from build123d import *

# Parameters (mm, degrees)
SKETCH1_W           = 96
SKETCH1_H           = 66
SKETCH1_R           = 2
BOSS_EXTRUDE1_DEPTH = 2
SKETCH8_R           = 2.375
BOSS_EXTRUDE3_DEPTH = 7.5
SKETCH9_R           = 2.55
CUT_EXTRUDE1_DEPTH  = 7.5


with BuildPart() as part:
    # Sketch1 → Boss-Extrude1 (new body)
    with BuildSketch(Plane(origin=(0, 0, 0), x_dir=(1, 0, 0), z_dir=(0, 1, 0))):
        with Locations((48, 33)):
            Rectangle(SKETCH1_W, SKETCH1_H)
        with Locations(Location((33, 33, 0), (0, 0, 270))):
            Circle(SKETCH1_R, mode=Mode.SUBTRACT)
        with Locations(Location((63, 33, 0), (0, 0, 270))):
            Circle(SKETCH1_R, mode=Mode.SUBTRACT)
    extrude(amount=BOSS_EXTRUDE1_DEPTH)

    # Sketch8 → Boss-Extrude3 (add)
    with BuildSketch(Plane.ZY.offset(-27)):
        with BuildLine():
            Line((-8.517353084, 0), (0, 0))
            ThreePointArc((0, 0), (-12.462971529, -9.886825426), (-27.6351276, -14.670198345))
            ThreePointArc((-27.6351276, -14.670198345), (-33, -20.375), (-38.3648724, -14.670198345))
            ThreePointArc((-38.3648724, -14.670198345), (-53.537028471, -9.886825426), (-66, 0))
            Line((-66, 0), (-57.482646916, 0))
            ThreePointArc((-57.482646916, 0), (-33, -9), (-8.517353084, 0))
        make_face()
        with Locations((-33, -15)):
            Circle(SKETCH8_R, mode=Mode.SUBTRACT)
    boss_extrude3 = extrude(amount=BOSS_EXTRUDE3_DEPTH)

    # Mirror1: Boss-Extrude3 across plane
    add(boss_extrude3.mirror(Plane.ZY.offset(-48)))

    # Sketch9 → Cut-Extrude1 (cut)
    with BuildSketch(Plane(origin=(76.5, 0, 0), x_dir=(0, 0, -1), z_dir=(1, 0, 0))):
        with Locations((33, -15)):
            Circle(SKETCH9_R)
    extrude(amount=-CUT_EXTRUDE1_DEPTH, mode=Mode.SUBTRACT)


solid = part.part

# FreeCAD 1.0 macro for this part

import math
import FreeCAD as App
import Part
import Sketcher
from FreeCAD import Vector
Q = App.Units.Quantity


def add_polygon(sketch, points):
    """Adds a closed chain of lines whose ends are joined by coincident constraints."""
    first, n = sketch.GeometryCount, len(points)
    for a, b in zip(points, points[1:] + points[:1]):
        sketch.addGeometry(Part.LineSegment(App.Vector(*a, 0), App.Vector(*b, 0)), False)
    for i in range(n):
        sketch.addConstraint(Sketcher.Constraint("Coincident", first + i, 2, first + (i + 1) % n, 1))

doc = App.newDocument("Part")
params = doc.addObject("Spreadsheet::Sheet", "Params")
for row, (alias, value) in enumerate([
    ("sketch1_diameter", "4 mm"),
    ("sketch1_width", "96 mm"),
    ("sketch1_height", "66 mm"),
    ("pad1_length", "2 mm"),
    ("sketch2_radius", "37.8 mm"),
    ("sketch2_radius2", "43.8 mm"),
    ("sketch2_diameter", "4.75 mm"),
    ("pad2_length", "7.5 mm"),
    ("sketch3_diameter", "5.1 mm"),
    ("pocket1_length", "7.5 mm"),
], start=1):
    params.set(f"A{row}", alias)
    params.set(f"B{row}", "=" + value)
    params.setAlias(f"B{row}", alias)

body = doc.addObject("PartDesign::Body", "Body")

# Sketch on XZ plane
sketch1 = doc.addObject("Sketcher::SketchObject", "Sketch")
body.addObject(sketch1)
sketch1.AttachmentSupport = (doc.XZ_Plane, [""])
sketch1.MapMode = "FlatFace"
add_polygon(sketch1, [(0, -66), (0, 0), (96, 0), (96, -66)])  # lines 0-3
sketch1.addGeometry(Part.Circle(Vector(33, -33, 0), Vector(0, 0, 1), 2), False)  # 4
sketch1.addGeometry(Part.Circle(Vector(63, -33, 0), Vector(0, 0, 1), 2), False)  # 5
sketch1.addConstraint([
    Sketcher.Constraint("Vertical", 0),
    Sketcher.Constraint("Horizontal", 1),
    Sketcher.Constraint("Vertical", 2),
    Sketcher.Constraint("Horizontal", 3),
    Sketcher.Constraint("Coincident", 0, 2, -1, 1),
    Sketcher.Constraint("Equal", 4, 5),
    Sketcher.Constraint("Horizontal", 4, 3, 5, 3),
    Sketcher.Constraint("Diameter", 4, Q("4 mm")),
    Sketcher.Constraint("DistanceX", 1, 1, 1, 2, Q("96 mm")),
    Sketcher.Constraint("DistanceY", 0, 1, 0, 2, Q("66 mm")),
    Sketcher.Constraint("DistanceX", -1, 1, 4, 3, Q("33 mm")),
    Sketcher.Constraint("DistanceY", 4, 3, -1, 1, Q("33 mm")),
    Sketcher.Constraint("DistanceX", -1, 1, 5, 3, Q("63 mm")),
])
sketch1.setExpression("Constraints[11]", "Params.sketch1_diameter")
sketch1.setExpression("Constraints[12]", "Params.sketch1_width")
sketch1.setExpression("Constraints[13]", "Params.sketch1_height")
pad1 = doc.addObject("PartDesign::Pad", "Pad")
body.addObject(pad1)
pad1.Profile = sketch1
pad1.setExpression("Length", "Params.pad1_length")
pad1.Reversed = True

# Sketch on YZ plane
sketch2 = doc.addObject("Sketcher::SketchObject", "Sketch001")
body.addObject(sketch2)
sketch2.AttachmentSupport = (doc.YZ_Plane, [""])
sketch2.MapMode = "FlatFace"
sketch2.AttachmentOffset = App.Placement(Vector(0, 0, 27), App.Rotation())
sketch2.addGeometry([
    Part.LineSegment(Vector(0, 0, 0), Vector(0, -8.517353, 0)),  # 0
    Part.ArcOfCircle(Part.Circle(Vector(28.8, -33, 0), Vector(0, 0, 1), 37.8), math.radians(139.632406), math.radians(220.367594)),  # 1
    Part.LineSegment(Vector(0, -57.482647, 0), Vector(0, -66, 0)),  # 2
    Part.ArcOfCircle(Part.Circle(Vector(28.8, -33, 0), Vector(0, 0, 1), 43.8), math.radians(-172.96442), math.radians(-131.11209)),  # 3
    Part.ArcOfCircle(Part.Circle(Vector(-15, -33, 0), Vector(0, 0, 1), 5.375), math.radians(86.48221), math.radians(273.51779)),  # 4
    Part.ArcOfCircle(Part.Circle(Vector(28.8, -33, 0), Vector(0, 0, 1), 43.8), math.radians(131.11209), math.radians(172.96442)),  # 5
    Part.Circle(Vector(-15, -33, 0), Vector(0, 0, 1), 2.375),  # 6
], False)
sketch2.addConstraint([
    Sketcher.Constraint("Coincident", 0, 2, 1, 1),
    Sketcher.Constraint("Coincident", 1, 2, 2, 1),
    Sketcher.Constraint("Coincident", 2, 2, 3, 2),
    Sketcher.Constraint("Coincident", 3, 1, 4, 2),
    Sketcher.Constraint("Coincident", 4, 1, 5, 2),
    Sketcher.Constraint("Coincident", 5, 1, 0, 1),
    Sketcher.Constraint("Vertical", 0),
    Sketcher.Constraint("Vertical", 2),
    Sketcher.Constraint("Coincident", 5, 1, -1, 1),
    Sketcher.Constraint("Coincident", 3, 3, 1, 3),
    Sketcher.Constraint("Coincident", 5, 3, 1, 3),
    Sketcher.Constraint("Coincident", 6, 3, 4, 3),
    Sketcher.Constraint("Equal", 3, 5),
    Sketcher.Constraint("PointOnObject", 1, 2, -2),
    Sketcher.Constraint("Horizontal", 3, 3, 4, 3),
    Sketcher.Constraint("Radius", 1, Q("37.8 mm")),
    Sketcher.Constraint("Radius", 3, Q("43.8 mm")),
    Sketcher.Constraint("Diameter", 6, Q("4.75 mm")),
    Sketcher.Constraint("DistanceY", 1, 3, -1, 1, Q("33 mm")),
    Sketcher.Constraint("DistanceX", 4, 3, -1, 1, Q("15 mm")),
    Sketcher.Constraint("Radius", 4, Q("5.375 mm")),
])
sketch2.setExpression("Constraints[15]", "Params.sketch2_radius")
sketch2.setExpression("Constraints[16]", "Params.sketch2_radius2")
sketch2.setExpression("Constraints[17]", "Params.sketch2_diameter")
pad2 = doc.addObject("PartDesign::Pad", "Pad001")
body.addObject(pad2)
pad2.Profile = sketch2
pad2.setExpression("Length", "Params.pad2_length")
pad2.Reversed = True
doc.recompute()

datumplane = doc.addObject("PartDesign::Plane", "DatumPlane")
body.addObject(datumplane)
datumplane.AttachmentSupport = (doc.YZ_Plane, [""])
datumplane.MapMode = "FlatFace"
datumplane.AttachmentOffset = App.Placement(Vector(0, 0, 48), App.Rotation())
mirrored = doc.addObject("PartDesign::Mirrored", "Mirrored")
body.addObject(mirrored)
mirrored.Originals = [pad2]
mirrored.MirrorPlane = (datumplane, [""])
body.Tip = mirrored

# Sketch on YZ plane
sketch3 = doc.addObject("Sketcher::SketchObject", "Sketch002")
body.addObject(sketch3)
sketch3.AttachmentSupport = (doc.YZ_Plane, [""])
sketch3.MapMode = "FlatFace"
sketch3.AttachmentOffset = App.Placement(Vector(0, 0, 76.5), App.Rotation())
sketch3.addGeometry(Part.Circle(Vector(-15, -33, 0), Vector(0, 0, 1), 2.55), False)
sketch3.addConstraint([
    Sketcher.Constraint("Diameter", 0, Q("5.1 mm")),
    Sketcher.Constraint("DistanceX", 0, 3, -1, 1, Q("15 mm")),
    Sketcher.Constraint("DistanceY", 0, 3, -1, 1, Q("33 mm")),
])
sketch3.setExpression("Constraints[0]", "Params.sketch3_diameter")
pocket1 = doc.addObject("PartDesign::Pocket", "Pocket")
body.addObject(pocket1)
pocket1.Profile = sketch3
pocket1.setExpression("Length", "Params.pocket1_length")

doc.recompute()
